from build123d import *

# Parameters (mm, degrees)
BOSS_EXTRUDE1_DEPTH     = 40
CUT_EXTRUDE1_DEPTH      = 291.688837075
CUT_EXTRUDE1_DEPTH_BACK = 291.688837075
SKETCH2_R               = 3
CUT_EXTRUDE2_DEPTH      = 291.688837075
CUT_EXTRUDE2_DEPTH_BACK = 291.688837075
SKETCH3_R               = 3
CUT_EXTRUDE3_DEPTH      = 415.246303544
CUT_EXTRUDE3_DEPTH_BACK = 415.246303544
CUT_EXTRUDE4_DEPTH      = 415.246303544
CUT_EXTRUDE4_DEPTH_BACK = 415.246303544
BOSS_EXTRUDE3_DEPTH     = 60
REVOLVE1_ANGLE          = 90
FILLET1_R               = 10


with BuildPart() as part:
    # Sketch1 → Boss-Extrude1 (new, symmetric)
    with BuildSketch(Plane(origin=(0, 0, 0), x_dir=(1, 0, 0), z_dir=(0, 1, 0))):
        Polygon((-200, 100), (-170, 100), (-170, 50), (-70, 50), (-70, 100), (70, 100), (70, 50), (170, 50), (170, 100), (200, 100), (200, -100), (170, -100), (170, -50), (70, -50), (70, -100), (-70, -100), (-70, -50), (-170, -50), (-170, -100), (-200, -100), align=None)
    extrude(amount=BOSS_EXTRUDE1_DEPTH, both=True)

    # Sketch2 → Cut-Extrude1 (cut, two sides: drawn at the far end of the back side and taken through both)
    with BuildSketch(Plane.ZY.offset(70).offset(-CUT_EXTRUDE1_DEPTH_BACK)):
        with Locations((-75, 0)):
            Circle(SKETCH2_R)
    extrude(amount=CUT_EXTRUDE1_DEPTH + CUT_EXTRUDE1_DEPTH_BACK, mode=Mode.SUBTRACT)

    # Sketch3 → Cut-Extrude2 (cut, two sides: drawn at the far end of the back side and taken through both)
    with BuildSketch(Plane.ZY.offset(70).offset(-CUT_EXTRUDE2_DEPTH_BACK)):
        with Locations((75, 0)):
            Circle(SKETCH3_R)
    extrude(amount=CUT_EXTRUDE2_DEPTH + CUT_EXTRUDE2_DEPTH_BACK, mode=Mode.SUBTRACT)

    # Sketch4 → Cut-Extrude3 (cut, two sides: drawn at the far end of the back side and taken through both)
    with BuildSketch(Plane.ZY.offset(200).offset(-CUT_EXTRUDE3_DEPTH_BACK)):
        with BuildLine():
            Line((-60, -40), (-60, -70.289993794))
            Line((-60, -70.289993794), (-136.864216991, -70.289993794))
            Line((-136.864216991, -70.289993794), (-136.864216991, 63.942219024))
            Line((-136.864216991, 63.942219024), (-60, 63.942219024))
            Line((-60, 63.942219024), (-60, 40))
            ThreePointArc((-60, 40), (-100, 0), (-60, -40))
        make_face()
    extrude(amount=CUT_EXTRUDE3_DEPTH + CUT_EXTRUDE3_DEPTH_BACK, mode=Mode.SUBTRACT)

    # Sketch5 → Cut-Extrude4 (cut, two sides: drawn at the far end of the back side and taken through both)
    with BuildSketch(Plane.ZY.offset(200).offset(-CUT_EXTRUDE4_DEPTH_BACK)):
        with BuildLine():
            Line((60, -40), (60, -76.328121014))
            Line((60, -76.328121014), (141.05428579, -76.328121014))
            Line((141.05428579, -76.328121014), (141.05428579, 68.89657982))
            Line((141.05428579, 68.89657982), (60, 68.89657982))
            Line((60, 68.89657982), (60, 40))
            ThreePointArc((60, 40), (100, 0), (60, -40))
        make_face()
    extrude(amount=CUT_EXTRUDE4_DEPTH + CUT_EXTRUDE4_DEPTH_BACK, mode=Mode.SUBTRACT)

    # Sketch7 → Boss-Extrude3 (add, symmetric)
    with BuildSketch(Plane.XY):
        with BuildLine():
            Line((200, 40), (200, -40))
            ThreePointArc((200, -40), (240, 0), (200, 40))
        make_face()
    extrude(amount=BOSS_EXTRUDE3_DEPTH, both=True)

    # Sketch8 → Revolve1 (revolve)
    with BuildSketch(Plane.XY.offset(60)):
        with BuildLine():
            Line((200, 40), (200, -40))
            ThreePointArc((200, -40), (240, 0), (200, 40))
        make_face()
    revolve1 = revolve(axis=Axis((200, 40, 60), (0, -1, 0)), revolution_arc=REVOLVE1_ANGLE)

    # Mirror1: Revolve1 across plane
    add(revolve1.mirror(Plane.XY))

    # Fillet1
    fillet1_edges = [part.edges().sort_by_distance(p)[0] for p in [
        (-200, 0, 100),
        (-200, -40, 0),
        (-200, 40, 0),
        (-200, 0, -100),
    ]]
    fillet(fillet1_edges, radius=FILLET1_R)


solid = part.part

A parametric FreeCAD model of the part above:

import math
import FreeCAD as App
import Part
import Sketcher

V = App.Vector


def edges_at(feature, points):
    """Names of the edges that pass closest to the given points."""
    edges = feature.Shape.Edges
    near = lambda p: min(range(len(edges)), key=lambda i: edges[i].distToShape(Part.Vertex(*p))[0])
    return sorted({f"Edge{near(p) + 1}" for p in points})


def add_polygon(sketch, points):
    """Adds a closed chain of lines whose ends are joined by coincident constraints."""
    first, n = sketch.GeometryCount, len(points)
    for a, b in zip(points, points[1:] + points[:1]):
        sketch.addGeometry(Part.LineSegment(App.Vector(*a, 0), App.Vector(*b, 0)), False)
    for i in range(n):
        sketch.addConstraint(Sketcher.Constraint("Coincident", first + i, 2, first + (i + 1) % n, 1))

doc = App.newDocument("Part")
body = doc.addObject("PartDesign::Body", "Body")

# Sketch on XZ plane
sketch1 = body.newObject("Sketcher::SketchObject", "Sketch")
sketch1.AttachmentSupport = (doc.getObject("XZ_Plane"), [""])
sketch1.MapMode = "FlatFace"
add_polygon(sketch1, [(-170, -100), (-200, -100), (-200, 100), (-170, 100), (-170, 50), (-70, 50), (-70, 100), (70, 100), (70, 50), (170, 50), (170, 100), (200, 100), (200, -100), (170, -100), (170, -50), (70, -50), (70, -100), (-70, -100), (-70, -50), (-170, -50)])  # lines 0-19
sketch1.addConstraint([
    Sketcher.Constraint("Horizontal", 0),
    Sketcher.Constraint("Vertical", 1),
    Sketcher.Constraint("Horizontal", 2),
    Sketcher.Constraint("Vertical", 3),
    Sketcher.Constraint("Horizontal", 4),
    Sketcher.Constraint("Vertical", 5),
    Sketcher.Constraint("Horizontal", 6),
    Sketcher.Constraint("Vertical", 7),
    Sketcher.Constraint("Horizontal", 8),
    Sketcher.Constraint("Vertical", 9),
    Sketcher.Constraint("Horizontal", 10),
    Sketcher.Constraint("Vertical", 11),
    Sketcher.Constraint("Horizontal", 12),
    Sketcher.Constraint("Vertical", 13),
    Sketcher.Constraint("Horizontal", 14),
    Sketcher.Constraint("Vertical", 15),
    Sketcher.Constraint("Horizontal", 16),
    Sketcher.Constraint("Vertical", 17),
    Sketcher.Constraint("Horizontal", 18),
    Sketcher.Constraint("Vertical", 19),
    Sketcher.Constraint("Symmetric", 0, 2, 10, 2, -1, 1),
    Sketcher.Constraint("Symmetric", 2, 2, 12, 2, -1, 1),
    Sketcher.Constraint("Symmetric", 4, 2, 14, 2, -1, 1),
    Sketcher.Constraint("Symmetric", 6, 2, 16, 2, -1, 1),
    Sketcher.Constraint("Symmetric", 8, 2, 18, 2, -1, 1),
    Sketcher.Constraint("Symmetric", 4, 2, 7, 2, -2),
    Sketcher.Constraint("Symmetric", 2, 2, 9, 2, -2),
    Sketcher.Constraint("Horizontal", 2, 2, 5, 2),
    Sketcher.Constraint("DistanceX", 0, 2, 0, 1, 30.0),
    Sketcher.Constraint("DistanceX", 4, 1, 4, 2, 100.0),
    Sketcher.Constraint("DistanceX", 6, 1, 6, 2, 140.0),
    Sketcher.Constraint("DistanceY", 1, 1, 1, 2, 200.0),
    Sketcher.Constraint("DistanceY", 3, 2, 3, 1, 50.0),
])
pad1 = body.newObject("PartDesign::Pad", "Pad")
pad1.Profile = sketch1
pad1.Length = 80
pad1.Midplane = True

# Sketch on YZ plane
sketch2 = body.newObject("Sketcher::SketchObject", "Sketch001")
sketch2.AttachmentSupport = (doc.getObject("YZ_Plane"), [""])
sketch2.MapMode = "FlatFace"
sketch2.AttachmentOffset = App.Placement(V(0, 0, -70), App.Rotation())
sketch2.addGeometry(Part.Circle(V(0, -75, 0), V(0, 0, 1), 3), False)
sketch2.addConstraint([
    Sketcher.Constraint("PointOnObject", 0, 3, -2),
    Sketcher.Constraint("Diameter", 0, 6.0),
    Sketcher.Constraint("DistanceY", 0, 3, -1, 1, 75.0),
])
pocket1 = body.newObject("PartDesign::Pocket", "Pocket")
pocket1.Profile = sketch2
pocket1.Type = "ThroughAll"
pocket1.Midplane = True

# Sketch on YZ plane
sketch3 = body.newObject("Sketcher::SketchObject", "Sketch002")
sketch3.AttachmentSupport = (doc.getObject("YZ_Plane"), [""])
sketch3.MapMode = "FlatFace"
sketch3.AttachmentOffset = App.Placement(V(0, 0, -70), App.Rotation())
sketch3.addGeometry(Part.Circle(V(0, 75, 0), V(0, 0, 1), 3), False)
sketch3.addConstraint([
    Sketcher.Constraint("PointOnObject", 0, 3, -2),
    Sketcher.Constraint("Diameter", 0, 6.0),
    Sketcher.Constraint("DistanceY", -1, 1, 0, 3, 75.0),
])
pocket2 = body.newObject("PartDesign::Pocket", "Pocket001")
pocket2.Profile = sketch3
pocket2.Type = "ThroughAll"
pocket2.Midplane = True

# Sketch on YZ plane
sketch4 = body.newObject("Sketcher::SketchObject", "Sketch003")
sketch4.AttachmentSupport = (doc.getObject("YZ_Plane"), [""])
sketch4.MapMode = "FlatFace"
sketch4.AttachmentOffset = App.Placement(V(0, 0, -200), App.Rotation())
sketch4.addGeometry([
    Part.LineSegment(V(-70.289994, -60, 0), V(-40, -60, 0)),  # 0
    Part.ArcOfCircle(Part.Circle(V(0, -60, 0), V(0, 0, 1), 40), math.radians(180), math.radians(360)),  # 1
    Part.LineSegment(V(40, -60, 0), V(63.942219, -60, 0)),  # 2
    Part.LineSegment(V(63.942219, -60, 0), V(63.942219, -136.864217, 0)),  # 3
    Part.LineSegment(V(63.942219, -136.864217, 0), V(-70.289994, -136.864217, 0)),  # 4
    Part.LineSegment(V(-70.289994, -136.864217, 0), V(-70.289994, -60, 0)),  # 5
], False)
sketch4.addConstraint([
    Sketcher.Constraint("Coincident", 0, 2, 1, 1),
    Sketcher.Constraint("Coincident", 1, 2, 2, 1),
    Sketcher.Constraint("Coincident", 2, 2, 3, 1),
    Sketcher.Constraint("Coincident", 3, 2, 4, 1),
    Sketcher.Constraint("Coincident", 4, 2, 5, 1),
    Sketcher.Constraint("Coincident", 5, 2, 0, 1),
    Sketcher.Constraint("Horizontal", 0),
    Sketcher.Constraint("Horizontal", 2),
    Sketcher.Constraint("Vertical", 3),
    Sketcher.Constraint("Horizontal", 4),
    Sketcher.Constraint("Vertical", 5),
    Sketcher.Constraint("Symmetric", 0, 2, 1, 2, -2),
    Sketcher.Constraint("Horizontal", 1, 3, 0, 2),
    Sketcher.Constraint("Radius", 1, 40.0),
    Sketcher.Constraint("DistanceY", 1, 3, -1, 1, 60.0),
    Sketcher.Constraint("DistanceX", 2, 1, 2, 2, 23.942219),
    Sketcher.Constraint("DistanceX", 0, 1, 0, 2, 30.289994),
    Sketcher.Constraint("DistanceY", 3, 2, 3, 1, 76.864217),
])
pocket3 = body.newObject("PartDesign::Pocket", "Pocket002")
pocket3.Profile = sketch4
pocket3.Type = "ThroughAll"
pocket3.Midplane = True

# Sketch on YZ plane
sketch5 = body.newObject("Sketcher::SketchObject", "Sketch004")
sketch5.AttachmentSupport = (doc.getObject("YZ_Plane"), [""])
sketch5.MapMode = "FlatFace"
sketch5.AttachmentOffset = App.Placement(V(0, 0, -200), App.Rotation())
sketch5.addGeometry([
    Part.LineSegment(V(-40, 60, 0), V(-76.328121, 60, 0)),  # 0
    Part.LineSegment(V(-76.328121, 60, 0), V(-76.328121, 141.054286, 0)),  # 1
    Part.LineSegment(V(-76.328121, 141.054286, 0), V(68.89658, 141.054286, 0)),  # 2
    Part.LineSegment(V(68.89658, 141.054286, 0), V(68.89658, 60, 0)),  # 3
    Part.LineSegment(V(68.89658, 60, 0), V(40, 60, 0)),  # 4
    Part.ArcOfCircle(Part.Circle(V(0, 60, 0), V(0, 0, 1), 40), math.radians(0), math.radians(180)),  # 5
], False)
sketch5.addConstraint([
    Sketcher.Constraint("Coincident", 0, 2, 1, 1),
    Sketcher.Constraint("Coincident", 1, 2, 2, 1),
    Sketcher.Constraint("Coincident", 2, 2, 3, 1),
    Sketcher.Constraint("Coincident", 3, 2, 4, 1),
    Sketcher.Constraint("Coincident", 4, 2, 5, 1),
    Sketcher.Constraint("Coincident", 5, 2, 0, 1),
    Sketcher.Constraint("Horizontal", 0),
    Sketcher.Constraint("Vertical", 1),
    Sketcher.Constraint("Horizontal", 2),
    Sketcher.Constraint("Vertical", 3),
    Sketcher.Constraint("Horizontal", 4),
    Sketcher.Constraint("Symmetric", 4, 2, 5, 2, -2),
    Sketcher.Constraint("Horizontal", 5, 3, 0, 2),
    Sketcher.Constraint("Radius", 5, 40.0),
    Sketcher.Constraint("DistanceY", -1, 1, 5, 3, 60.0),
    Sketcher.Constraint("DistanceX", 2, 1, 2, 2, 145.224701),
    Sketcher.Constraint("DistanceX", 0, 2, 0, 1, 36.328121),
    Sketcher.Constraint("DistanceY", 1, 1, 1, 2, 81.054286),
])
pocket4 = body.newObject("PartDesign::Pocket", "Pocket003")
pocket4.Profile = sketch5
pocket4.Type = "ThroughAll"
pocket4.Midplane = True

# Sketch on XY plane
sketch6 = body.newObject("Sketcher::SketchObject", "Sketch005")
sketch6.AttachmentSupport = (doc.getObject("XY_Plane"), [""])
sketch6.MapMode = "FlatFace"
sketch6.addGeometry([
    Part.LineSegment(V(200, 40, 0), V(200, -40, 0)),
    Part.ArcOfCircle(Part.Circle(V(200, 0, 0), V(0, 0, 1), 40), math.radians(-90), math.radians(90)),
], False)
sketch6.addConstraint([
    Sketcher.Constraint("Coincident", 0, 1, 1, 2),
    Sketcher.Constraint("Coincident", 1, 1, 0, 2),
    Sketcher.Constraint("Vertical", 0),
    Sketcher.Constraint("PointOnObject", 1, 3, -1),
    Sketcher.Constraint("Vertical", 1, 3, 0, 1),
    Sketcher.Constraint("Radius", 1, 40.0),
    Sketcher.Constraint("DistanceX", -1, 1, 1, 3, 200.0),
])
pad2 = body.newObject("PartDesign::Pad", "Pad001")
pad2.Profile = sketch6
pad2.Length = 120
pad2.Midplane = True

# Sketch on XY plane
sketch7 = body.newObject("Sketcher::SketchObject", "Sketch006")
sketch7.AttachmentSupport = (doc.getObject("XY_Plane"), [""])
sketch7.MapMode = "FlatFace"
sketch7.AttachmentOffset = App.Placement(V(0, 0, 60), App.Rotation())
sketch7.addGeometry([
    Part.LineSegment(V(200, 40, 0), V(200, -40, 0)),
    Part.ArcOfCircle(Part.Circle(V(200, 0, 0), V(0, 0, 1), 40), math.radians(-90), math.radians(90)),
], False)
sketch7.addGeometry(Part.LineSegment(V(200, 40, 0), V(200, -40, 0)), True)  # axis
sketch7.addConstraint([
    Sketcher.Constraint("Coincident", 0, 1, 1, 2),
    Sketcher.Constraint("Coincident", 1, 1, 0, 2),
    Sketcher.Constraint("Vertical", 0),
    Sketcher.Constraint("Vertical", 2),
    Sketcher.Constraint("Coincident", 2, 1, 0, 1),
    Sketcher.Constraint("PointOnObject", 1, 3, -1),
    Sketcher.Constraint("Vertical", 1, 3, 0, 1),
    Sketcher.Constraint("Equal", 0, 2),
    Sketcher.Constraint("Radius", 1, 40.0),
    Sketcher.Constraint("DistanceX", -1, 1, 1, 3, 200.0),
])
revolution = body.newObject("PartDesign::Revolution", "Revolution")
revolution.Profile = sketch7
revolution.ReferenceAxis = (sketch7, ["Axis0"])
revolution.Angle = 90
doc.recompute()

mirrored = body.newObject("PartDesign::Mirrored", "Mirrored")
mirrored.Originals = [revolution]
mirrored.MirrorPlane = (doc.getObject("XY_Plane"), [""])
body.Tip = mirrored
doc.recompute()

fillet = body.newObject("PartDesign::Fillet", "Fillet")
fillet.Base = (mirrored, edges_at(mirrored, [
    (-200, 0, 100),
    (-200, -40, 0),
    (-200, 40, 0),
    (-200, 0, -100),
]))
fillet.Radius = 10

doc.recompute()
